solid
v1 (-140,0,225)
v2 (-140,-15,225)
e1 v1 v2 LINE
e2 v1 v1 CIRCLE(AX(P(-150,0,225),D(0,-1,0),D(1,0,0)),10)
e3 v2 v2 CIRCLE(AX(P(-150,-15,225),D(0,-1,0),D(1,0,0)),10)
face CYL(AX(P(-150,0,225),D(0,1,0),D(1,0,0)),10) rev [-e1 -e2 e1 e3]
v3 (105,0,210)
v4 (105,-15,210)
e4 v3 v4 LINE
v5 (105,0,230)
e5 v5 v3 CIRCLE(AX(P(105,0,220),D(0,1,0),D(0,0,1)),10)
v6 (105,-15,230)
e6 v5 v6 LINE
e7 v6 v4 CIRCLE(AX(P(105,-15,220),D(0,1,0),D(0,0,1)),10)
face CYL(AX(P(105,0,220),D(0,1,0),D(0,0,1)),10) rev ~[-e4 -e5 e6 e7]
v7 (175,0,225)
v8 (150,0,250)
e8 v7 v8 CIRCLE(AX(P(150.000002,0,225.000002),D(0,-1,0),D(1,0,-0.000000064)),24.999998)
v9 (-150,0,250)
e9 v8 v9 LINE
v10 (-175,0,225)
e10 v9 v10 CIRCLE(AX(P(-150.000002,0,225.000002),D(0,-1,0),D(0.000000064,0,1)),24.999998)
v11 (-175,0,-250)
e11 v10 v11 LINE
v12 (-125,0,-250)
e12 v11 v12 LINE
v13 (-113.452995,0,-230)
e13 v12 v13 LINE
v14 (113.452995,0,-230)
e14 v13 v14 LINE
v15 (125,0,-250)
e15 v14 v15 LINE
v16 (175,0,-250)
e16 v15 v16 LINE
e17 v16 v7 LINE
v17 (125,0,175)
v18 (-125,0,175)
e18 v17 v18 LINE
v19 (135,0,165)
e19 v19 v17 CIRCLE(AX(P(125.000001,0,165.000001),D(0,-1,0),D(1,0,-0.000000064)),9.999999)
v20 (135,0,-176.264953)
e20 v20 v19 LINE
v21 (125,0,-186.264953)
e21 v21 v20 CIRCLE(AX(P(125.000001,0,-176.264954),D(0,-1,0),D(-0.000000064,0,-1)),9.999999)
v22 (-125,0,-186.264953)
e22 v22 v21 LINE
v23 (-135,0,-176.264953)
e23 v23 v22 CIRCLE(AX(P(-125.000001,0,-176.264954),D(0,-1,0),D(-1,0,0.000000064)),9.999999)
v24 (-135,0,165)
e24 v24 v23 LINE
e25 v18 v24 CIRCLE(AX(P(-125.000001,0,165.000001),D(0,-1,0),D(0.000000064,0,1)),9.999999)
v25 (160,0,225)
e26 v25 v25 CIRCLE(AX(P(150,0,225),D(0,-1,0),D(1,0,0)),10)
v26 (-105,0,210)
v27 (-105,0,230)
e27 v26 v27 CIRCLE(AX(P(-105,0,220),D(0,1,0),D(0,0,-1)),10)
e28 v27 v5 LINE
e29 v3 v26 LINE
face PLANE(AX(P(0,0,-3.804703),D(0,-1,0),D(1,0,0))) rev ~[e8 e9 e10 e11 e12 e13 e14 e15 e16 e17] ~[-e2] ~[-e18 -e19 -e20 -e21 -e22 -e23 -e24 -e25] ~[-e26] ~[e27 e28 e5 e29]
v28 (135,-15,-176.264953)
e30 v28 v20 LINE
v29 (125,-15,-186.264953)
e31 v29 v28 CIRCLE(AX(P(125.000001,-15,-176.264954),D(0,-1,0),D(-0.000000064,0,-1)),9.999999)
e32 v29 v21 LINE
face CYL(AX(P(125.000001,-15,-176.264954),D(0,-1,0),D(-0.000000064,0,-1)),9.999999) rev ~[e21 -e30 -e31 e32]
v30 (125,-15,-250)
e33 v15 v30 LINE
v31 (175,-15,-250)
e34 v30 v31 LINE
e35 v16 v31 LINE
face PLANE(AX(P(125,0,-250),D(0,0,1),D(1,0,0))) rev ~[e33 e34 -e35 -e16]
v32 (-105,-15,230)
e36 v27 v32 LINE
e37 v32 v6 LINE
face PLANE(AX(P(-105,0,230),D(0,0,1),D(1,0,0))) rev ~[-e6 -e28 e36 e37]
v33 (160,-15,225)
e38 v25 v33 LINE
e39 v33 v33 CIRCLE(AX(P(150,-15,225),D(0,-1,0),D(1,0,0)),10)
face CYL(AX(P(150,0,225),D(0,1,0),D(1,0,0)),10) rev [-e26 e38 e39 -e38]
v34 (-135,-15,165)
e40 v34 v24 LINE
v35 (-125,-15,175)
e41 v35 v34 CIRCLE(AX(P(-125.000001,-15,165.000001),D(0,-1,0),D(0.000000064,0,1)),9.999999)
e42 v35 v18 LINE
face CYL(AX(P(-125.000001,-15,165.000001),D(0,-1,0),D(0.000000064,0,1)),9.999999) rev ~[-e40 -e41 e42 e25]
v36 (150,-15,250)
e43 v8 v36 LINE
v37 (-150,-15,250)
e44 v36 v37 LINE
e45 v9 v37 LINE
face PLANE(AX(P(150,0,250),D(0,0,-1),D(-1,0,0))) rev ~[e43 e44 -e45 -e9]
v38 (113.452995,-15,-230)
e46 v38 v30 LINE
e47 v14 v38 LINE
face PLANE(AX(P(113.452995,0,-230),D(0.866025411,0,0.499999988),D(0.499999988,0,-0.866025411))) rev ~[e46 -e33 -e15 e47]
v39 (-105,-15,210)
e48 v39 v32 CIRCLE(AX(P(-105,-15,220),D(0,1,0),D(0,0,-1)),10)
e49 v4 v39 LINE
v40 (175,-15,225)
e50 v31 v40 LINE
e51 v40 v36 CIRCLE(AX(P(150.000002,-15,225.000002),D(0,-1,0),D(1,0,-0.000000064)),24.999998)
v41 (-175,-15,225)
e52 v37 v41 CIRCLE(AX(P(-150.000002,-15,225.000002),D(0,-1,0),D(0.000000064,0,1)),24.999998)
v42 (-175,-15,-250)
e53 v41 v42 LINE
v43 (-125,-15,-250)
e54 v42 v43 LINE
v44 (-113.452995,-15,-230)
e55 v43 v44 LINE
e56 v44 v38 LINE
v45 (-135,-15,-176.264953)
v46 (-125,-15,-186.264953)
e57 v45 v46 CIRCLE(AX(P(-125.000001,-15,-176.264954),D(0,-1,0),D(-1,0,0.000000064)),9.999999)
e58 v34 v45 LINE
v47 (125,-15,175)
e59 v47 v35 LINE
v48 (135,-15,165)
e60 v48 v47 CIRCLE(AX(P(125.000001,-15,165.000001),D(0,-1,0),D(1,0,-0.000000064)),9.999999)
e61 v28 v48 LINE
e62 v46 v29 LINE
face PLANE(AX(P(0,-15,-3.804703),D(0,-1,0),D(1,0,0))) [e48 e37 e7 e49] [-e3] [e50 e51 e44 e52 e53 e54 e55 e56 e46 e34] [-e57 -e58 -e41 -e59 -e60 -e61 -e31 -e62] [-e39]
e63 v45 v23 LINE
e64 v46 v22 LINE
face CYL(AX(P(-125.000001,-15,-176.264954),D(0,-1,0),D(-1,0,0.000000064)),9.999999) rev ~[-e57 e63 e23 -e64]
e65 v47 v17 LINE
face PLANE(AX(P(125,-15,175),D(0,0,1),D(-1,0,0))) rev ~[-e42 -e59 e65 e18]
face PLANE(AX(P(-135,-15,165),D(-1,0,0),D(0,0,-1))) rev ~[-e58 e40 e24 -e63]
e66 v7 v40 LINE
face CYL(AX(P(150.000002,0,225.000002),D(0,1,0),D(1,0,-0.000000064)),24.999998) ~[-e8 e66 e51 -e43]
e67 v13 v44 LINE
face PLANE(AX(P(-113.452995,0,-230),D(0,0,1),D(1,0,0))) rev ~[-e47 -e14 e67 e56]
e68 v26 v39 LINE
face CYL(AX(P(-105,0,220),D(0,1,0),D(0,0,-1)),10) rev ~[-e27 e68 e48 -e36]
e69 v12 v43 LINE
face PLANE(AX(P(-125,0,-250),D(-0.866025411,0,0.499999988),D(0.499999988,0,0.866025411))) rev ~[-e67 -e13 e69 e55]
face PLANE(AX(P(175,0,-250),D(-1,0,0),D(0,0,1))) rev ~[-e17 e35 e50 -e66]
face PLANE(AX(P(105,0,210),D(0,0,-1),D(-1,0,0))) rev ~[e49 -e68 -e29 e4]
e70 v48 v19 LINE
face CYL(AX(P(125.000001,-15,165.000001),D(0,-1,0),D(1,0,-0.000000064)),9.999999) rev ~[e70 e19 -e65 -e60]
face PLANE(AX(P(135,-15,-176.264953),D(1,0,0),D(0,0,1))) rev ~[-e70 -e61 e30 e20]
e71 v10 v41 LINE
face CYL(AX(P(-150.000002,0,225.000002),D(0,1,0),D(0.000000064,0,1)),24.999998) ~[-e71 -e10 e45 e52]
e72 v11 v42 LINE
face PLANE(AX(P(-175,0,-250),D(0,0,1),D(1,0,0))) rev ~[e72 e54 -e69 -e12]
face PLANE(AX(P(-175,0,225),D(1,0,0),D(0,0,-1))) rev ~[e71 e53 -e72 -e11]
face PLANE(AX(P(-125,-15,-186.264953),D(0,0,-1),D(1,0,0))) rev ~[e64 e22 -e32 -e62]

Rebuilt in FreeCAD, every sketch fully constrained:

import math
import FreeCAD as App
import Part
import Sketcher
from FreeCAD import Vector
Q = App.Units.Quantity

doc = App.newDocument("Part")
body = doc.addObject("PartDesign::Body", "Body")

# Sketch on XZ plane
sketch1 = body.newObject("Sketcher::SketchObject", "Sketch")
sketch1.AttachmentSupport = (doc.getObject("XZ_Plane"), [""])
sketch1.MapMode = "FlatFace"
sketch1.addGeometry(Part.LineSegment(Vector(150, 250, 0), Vector(-150, 250, 0)), False)
sketch1.addGeometry(Part.ArcOfCircle(Part.Circle(Vector(-150.000002, 225.000002, 0), Vector(0, 0, 1), 24.999998), math.radians(89.999996), math.radians(180.000004)), False)
sketch1.addGeometry(Part.LineSegment(Vector(-175, 225, 0), Vector(-175, -250, 0)), False)
sketch1.addGeometry(Part.LineSegment(Vector(-175, -250, 0), Vector(-125, -250, 0)), False)
sketch1.addGeometry(Part.LineSegment(Vector(-125, -250, 0), Vector(-113.452995, -230, 0)), False)
sketch1.addGeometry(Part.LineSegment(Vector(-113.452995, -230, 0), Vector(113.452995, -230, 0)), False)
sketch1.addGeometry(Part.LineSegment(Vector(113.452995, -230, 0), Vector(125, -250, 0)), False)
sketch1.addGeometry(Part.LineSegment(Vector(125, -250, 0), Vector(175, -250, 0)), False)
sketch1.addGeometry(Part.LineSegment(Vector(175, -250, 0), Vector(175, 225, 0)), False)
sketch1.addGeometry(Part.ArcOfCircle(Part.Circle(Vector(150.000002, 225.000002, 0), Vector(0, 0, 1), 24.999998), math.radians(-0.000004), math.radians(90.000004)), False)
sketch1.addGeometry(Part.ArcOfCircle(Part.Circle(Vector(105, 220, 0), Vector(0, 0, 1), 10), math.radians(-90), math.radians(90)), False)
sketch1.addGeometry(Part.LineSegment(Vector(105, 210, 0), Vector(-105, 210, 0)), False)
sketch1.addGeometry(Part.ArcOfCircle(Part.Circle(Vector(-105, 220, 0), Vector(0, 0, 1), 10), math.radians(90), math.radians(270)), False)
sketch1.addGeometry(Part.LineSegment(Vector(-105, 230, 0), Vector(105, 230, 0)), False)
sketch1.addGeometry(Part.Circle(Vector(-150, 225, 0), Vector(0, 0, 1), 10), False)
sketch1.addGeometry(Part.Circle(Vector(150, 225, 0), Vector(0, 0, 1), 10), False)
sketch1.addConstraint(Sketcher.Constraint("Tangent", 0, 2, 1, 1))
sketch1.addConstraint(Sketcher.Constraint("Tangent", 1, 2, 2, 1))
sketch1.addConstraint(Sketcher.Constraint("Coincident", 2, 2, 3, 1))
sketch1.addConstraint(Sketcher.Constraint("Coincident", 3, 2, 4, 1))
sketch1.addConstraint(Sketcher.Constraint("Coincident", 4, 2, 5, 1))
sketch1.addConstraint(Sketcher.Constraint("Coincident", 5, 2, 6, 1))
sketch1.addConstraint(Sketcher.Constraint("Coincident", 6, 2, 7, 1))
sketch1.addConstraint(Sketcher.Constraint("Coincident", 7, 2, 8, 1))
sketch1.addConstraint(Sketcher.Constraint("Tangent", 8, 2, 9, 1))
sketch1.addConstraint(Sketcher.Constraint("Tangent", 9, 2, 0, 1))
sketch1.addConstraint(Sketcher.Constraint("Tangent", 10, 1, 11, 1))
sketch1.addConstraint(Sketcher.Constraint("Tangent", 11, 2, 12, 2))
sketch1.addConstraint(Sketcher.Constraint("Tangent", 12, 1, 13, 1))
sketch1.addConstraint(Sketcher.Constraint("Tangent", 13, 2, 10, 2))
sketch1.addConstraint(Sketcher.Constraint("Horizontal", 0))
sketch1.addConstraint(Sketcher.Constraint("Vertical", 2))
sketch1.addConstraint(Sketcher.Constraint("Horizontal", 3))
sketch1.addConstraint(Sketcher.Constraint("Horizontal", 5))
sketch1.addConstraint(Sketcher.Constraint("Horizontal", 7))
sketch1.addConstraint(Sketcher.Constraint("Vertical", 8))
sketch1.addConstraint(Sketcher.Constraint("Horizontal", 11))
sketch1.addConstraint(Sketcher.Constraint("Horizontal", 13))
sketch1.addConstraint(Sketcher.Constraint("Coincident", 14, 3, 1, 3))
sketch1.addConstraint(Sketcher.Constraint("Coincident", 15, 3, 9, 3))
sketch1.addConstraint(Sketcher.Constraint("Equal", 1, 9))
sketch1.addConstraint(Sketcher.Constraint("Equal", 12, 14))
sketch1.addConstraint(Sketcher.Constraint("Equal", 14, 15))
sketch1.addConstraint(Sketcher.Constraint("Symmetric", 3, 2, 6, 2, -2))
sketch1.addConstraint(Sketcher.Constraint("Equal", 3, 7))
sketch1.addConstraint(Sketcher.Constraint("Equal", 4, 6))
sketch1.addConstraint(Sketcher.Constraint("Diameter", 14, Q("20 mm")))
sketch1.addConstraint(Sketcher.Constraint("Radius", 1, Q("24.999998 mm")))
sketch1.addConstraint(Sketcher.Constraint("DistanceX", 0, 2, 0, 1, Q("300 mm")))
sketch1.addConstraint(Sketcher.Constraint("DistanceX", 3, 1, 3, 2, Q("50 mm")))
sketch1.addConstraint(Sketcher.Constraint("DistanceX", 11, 2, 11, 1, Q("210 mm")))
sketch1.addConstraint(Sketcher.Constraint("DistanceY", 2, 2, 2, 1, Q("475 mm")))
sketch1.addConstraint(Sketcher.Constraint("Angle", 4, Q("60.000001 deg")))
sketch1.addConstraint(Sketcher.Constraint("DistanceY", -1, 1, 1, 3, Q("225.000002 mm")))
sketch1.addConstraint(Sketcher.Constraint("DistanceX", -1, 1, 10, 3, Q("105 mm")))
sketch1.addConstraint(Sketcher.Constraint("DistanceY", -1, 1, 10, 3, Q("220 mm")))
sketch1.addConstraint(Sketcher.Constraint("DistanceY", 4, 2, -1, 1, Q("230 mm")))
pad1 = body.newObject("PartDesign::Pad", "Pad")
pad1.Profile = sketch1
pad1.Length = 15

# Sketch on XZ plane
sketch2 = body.newObject("Sketcher::SketchObject", "Sketch001")
sketch2.AttachmentSupport = (doc.getObject("XZ_Plane"), [""])
sketch2.MapMode = "FlatFace"
sketch2.AttachmentOffset = App.Placement(Vector(0, 0, 15), App.Rotation())
sketch2.addGeometry(Part.ArcOfCircle(Part.Circle(Vector(125, 165, 0), Vector(0, 0, 1), 10), math.radians(0), math.radians(90)), False)
sketch2.addGeometry(Part.LineSegment(Vector(125, 175, 0), Vector(-125, 175, 0)), False)
sketch2.addGeometry(Part.ArcOfCircle(Part.Circle(Vector(-125, 165, 0), Vector(0, 0, 1), 10), math.radians(90), math.radians(180)), False)
sketch2.addGeometry(Part.LineSegment(Vector(-135, 165, 0), Vector(-135, -176, 0)), False)
sketch2.addGeometry(Part.ArcOfCircle(Part.Circle(Vector(-125, -176, 0), Vector(0, 0, 1), 10), math.radians(180), math.radians(270)), False)
sketch2.addGeometry(Part.LineSegment(Vector(-125, -186, 0), Vector(125, -186, 0)), False)
sketch2.addGeometry(Part.ArcOfCircle(Part.Circle(Vector(125, -176, 0), Vector(0, 0, 1), 10), math.radians(-90), math.radians(0)), False)
sketch2.addGeometry(Part.LineSegment(Vector(135, -176, 0), Vector(135, 165, 0)), False)
sketch2.addConstraint(Sketcher.Constraint("Tangent", 0, 2, 1, 1))
sketch2.addConstraint(Sketcher.Constraint("Tangent", 1, 2, 2, 1))
sketch2.addConstraint(Sketcher.Constraint("Tangent", 2, 2, 3, 1))
sketch2.addConstraint(Sketcher.Constraint("Tangent", 3, 2, 4, 1))
sketch2.addConstraint(Sketcher.Constraint("Tangent", 4, 2, 5, 1))
sketch2.addConstraint(Sketcher.Constraint("Tangent", 5, 2, 6, 1))
sketch2.addConstraint(Sketcher.Constraint("Tangent", 6, 2, 7, 1))
sketch2.addConstraint(Sketcher.Constraint("Tangent", 7, 2, 0, 1))
sketch2.addConstraint(Sketcher.Constraint("Horizontal", 1))
sketch2.addConstraint(Sketcher.Constraint("Vertical", 3))
sketch2.addConstraint(Sketcher.Constraint("Horizontal", 5))
sketch2.addConstraint(Sketcher.Constraint("Vertical", 7))
sketch2.addConstraint(Sketcher.Constraint("Equal", 0, 2))
sketch2.addConstraint(Sketcher.Constraint("Equal", 2, 4))
sketch2.addConstraint(Sketcher.Constraint("Equal", 4, 6))
sketch2.addConstraint(Sketcher.Constraint("Radius", 0, Q("9.999999 mm")))
sketch2.addConstraint(Sketcher.Constraint("DistanceX", 1, 2, 1, 1, Q("250 mm")))
sketch2.addConstraint(Sketcher.Constraint("DistanceX", -1, 1, 0, 3, Q("125.000001 mm")))
sketch2.addConstraint(Sketcher.Constraint("DistanceY", -1, 1, 0, 3, Q("165.000001 mm")))
sketch2.addConstraint(Sketcher.Constraint("DistanceY", 3, 2, 3, 1, Q("341.264953 mm")))
pocket1 = body.newObject("PartDesign::Pocket", "Pocket")
pocket1.Profile = sketch2
pocket1.Type = "ThroughAll"

doc.recompute()
